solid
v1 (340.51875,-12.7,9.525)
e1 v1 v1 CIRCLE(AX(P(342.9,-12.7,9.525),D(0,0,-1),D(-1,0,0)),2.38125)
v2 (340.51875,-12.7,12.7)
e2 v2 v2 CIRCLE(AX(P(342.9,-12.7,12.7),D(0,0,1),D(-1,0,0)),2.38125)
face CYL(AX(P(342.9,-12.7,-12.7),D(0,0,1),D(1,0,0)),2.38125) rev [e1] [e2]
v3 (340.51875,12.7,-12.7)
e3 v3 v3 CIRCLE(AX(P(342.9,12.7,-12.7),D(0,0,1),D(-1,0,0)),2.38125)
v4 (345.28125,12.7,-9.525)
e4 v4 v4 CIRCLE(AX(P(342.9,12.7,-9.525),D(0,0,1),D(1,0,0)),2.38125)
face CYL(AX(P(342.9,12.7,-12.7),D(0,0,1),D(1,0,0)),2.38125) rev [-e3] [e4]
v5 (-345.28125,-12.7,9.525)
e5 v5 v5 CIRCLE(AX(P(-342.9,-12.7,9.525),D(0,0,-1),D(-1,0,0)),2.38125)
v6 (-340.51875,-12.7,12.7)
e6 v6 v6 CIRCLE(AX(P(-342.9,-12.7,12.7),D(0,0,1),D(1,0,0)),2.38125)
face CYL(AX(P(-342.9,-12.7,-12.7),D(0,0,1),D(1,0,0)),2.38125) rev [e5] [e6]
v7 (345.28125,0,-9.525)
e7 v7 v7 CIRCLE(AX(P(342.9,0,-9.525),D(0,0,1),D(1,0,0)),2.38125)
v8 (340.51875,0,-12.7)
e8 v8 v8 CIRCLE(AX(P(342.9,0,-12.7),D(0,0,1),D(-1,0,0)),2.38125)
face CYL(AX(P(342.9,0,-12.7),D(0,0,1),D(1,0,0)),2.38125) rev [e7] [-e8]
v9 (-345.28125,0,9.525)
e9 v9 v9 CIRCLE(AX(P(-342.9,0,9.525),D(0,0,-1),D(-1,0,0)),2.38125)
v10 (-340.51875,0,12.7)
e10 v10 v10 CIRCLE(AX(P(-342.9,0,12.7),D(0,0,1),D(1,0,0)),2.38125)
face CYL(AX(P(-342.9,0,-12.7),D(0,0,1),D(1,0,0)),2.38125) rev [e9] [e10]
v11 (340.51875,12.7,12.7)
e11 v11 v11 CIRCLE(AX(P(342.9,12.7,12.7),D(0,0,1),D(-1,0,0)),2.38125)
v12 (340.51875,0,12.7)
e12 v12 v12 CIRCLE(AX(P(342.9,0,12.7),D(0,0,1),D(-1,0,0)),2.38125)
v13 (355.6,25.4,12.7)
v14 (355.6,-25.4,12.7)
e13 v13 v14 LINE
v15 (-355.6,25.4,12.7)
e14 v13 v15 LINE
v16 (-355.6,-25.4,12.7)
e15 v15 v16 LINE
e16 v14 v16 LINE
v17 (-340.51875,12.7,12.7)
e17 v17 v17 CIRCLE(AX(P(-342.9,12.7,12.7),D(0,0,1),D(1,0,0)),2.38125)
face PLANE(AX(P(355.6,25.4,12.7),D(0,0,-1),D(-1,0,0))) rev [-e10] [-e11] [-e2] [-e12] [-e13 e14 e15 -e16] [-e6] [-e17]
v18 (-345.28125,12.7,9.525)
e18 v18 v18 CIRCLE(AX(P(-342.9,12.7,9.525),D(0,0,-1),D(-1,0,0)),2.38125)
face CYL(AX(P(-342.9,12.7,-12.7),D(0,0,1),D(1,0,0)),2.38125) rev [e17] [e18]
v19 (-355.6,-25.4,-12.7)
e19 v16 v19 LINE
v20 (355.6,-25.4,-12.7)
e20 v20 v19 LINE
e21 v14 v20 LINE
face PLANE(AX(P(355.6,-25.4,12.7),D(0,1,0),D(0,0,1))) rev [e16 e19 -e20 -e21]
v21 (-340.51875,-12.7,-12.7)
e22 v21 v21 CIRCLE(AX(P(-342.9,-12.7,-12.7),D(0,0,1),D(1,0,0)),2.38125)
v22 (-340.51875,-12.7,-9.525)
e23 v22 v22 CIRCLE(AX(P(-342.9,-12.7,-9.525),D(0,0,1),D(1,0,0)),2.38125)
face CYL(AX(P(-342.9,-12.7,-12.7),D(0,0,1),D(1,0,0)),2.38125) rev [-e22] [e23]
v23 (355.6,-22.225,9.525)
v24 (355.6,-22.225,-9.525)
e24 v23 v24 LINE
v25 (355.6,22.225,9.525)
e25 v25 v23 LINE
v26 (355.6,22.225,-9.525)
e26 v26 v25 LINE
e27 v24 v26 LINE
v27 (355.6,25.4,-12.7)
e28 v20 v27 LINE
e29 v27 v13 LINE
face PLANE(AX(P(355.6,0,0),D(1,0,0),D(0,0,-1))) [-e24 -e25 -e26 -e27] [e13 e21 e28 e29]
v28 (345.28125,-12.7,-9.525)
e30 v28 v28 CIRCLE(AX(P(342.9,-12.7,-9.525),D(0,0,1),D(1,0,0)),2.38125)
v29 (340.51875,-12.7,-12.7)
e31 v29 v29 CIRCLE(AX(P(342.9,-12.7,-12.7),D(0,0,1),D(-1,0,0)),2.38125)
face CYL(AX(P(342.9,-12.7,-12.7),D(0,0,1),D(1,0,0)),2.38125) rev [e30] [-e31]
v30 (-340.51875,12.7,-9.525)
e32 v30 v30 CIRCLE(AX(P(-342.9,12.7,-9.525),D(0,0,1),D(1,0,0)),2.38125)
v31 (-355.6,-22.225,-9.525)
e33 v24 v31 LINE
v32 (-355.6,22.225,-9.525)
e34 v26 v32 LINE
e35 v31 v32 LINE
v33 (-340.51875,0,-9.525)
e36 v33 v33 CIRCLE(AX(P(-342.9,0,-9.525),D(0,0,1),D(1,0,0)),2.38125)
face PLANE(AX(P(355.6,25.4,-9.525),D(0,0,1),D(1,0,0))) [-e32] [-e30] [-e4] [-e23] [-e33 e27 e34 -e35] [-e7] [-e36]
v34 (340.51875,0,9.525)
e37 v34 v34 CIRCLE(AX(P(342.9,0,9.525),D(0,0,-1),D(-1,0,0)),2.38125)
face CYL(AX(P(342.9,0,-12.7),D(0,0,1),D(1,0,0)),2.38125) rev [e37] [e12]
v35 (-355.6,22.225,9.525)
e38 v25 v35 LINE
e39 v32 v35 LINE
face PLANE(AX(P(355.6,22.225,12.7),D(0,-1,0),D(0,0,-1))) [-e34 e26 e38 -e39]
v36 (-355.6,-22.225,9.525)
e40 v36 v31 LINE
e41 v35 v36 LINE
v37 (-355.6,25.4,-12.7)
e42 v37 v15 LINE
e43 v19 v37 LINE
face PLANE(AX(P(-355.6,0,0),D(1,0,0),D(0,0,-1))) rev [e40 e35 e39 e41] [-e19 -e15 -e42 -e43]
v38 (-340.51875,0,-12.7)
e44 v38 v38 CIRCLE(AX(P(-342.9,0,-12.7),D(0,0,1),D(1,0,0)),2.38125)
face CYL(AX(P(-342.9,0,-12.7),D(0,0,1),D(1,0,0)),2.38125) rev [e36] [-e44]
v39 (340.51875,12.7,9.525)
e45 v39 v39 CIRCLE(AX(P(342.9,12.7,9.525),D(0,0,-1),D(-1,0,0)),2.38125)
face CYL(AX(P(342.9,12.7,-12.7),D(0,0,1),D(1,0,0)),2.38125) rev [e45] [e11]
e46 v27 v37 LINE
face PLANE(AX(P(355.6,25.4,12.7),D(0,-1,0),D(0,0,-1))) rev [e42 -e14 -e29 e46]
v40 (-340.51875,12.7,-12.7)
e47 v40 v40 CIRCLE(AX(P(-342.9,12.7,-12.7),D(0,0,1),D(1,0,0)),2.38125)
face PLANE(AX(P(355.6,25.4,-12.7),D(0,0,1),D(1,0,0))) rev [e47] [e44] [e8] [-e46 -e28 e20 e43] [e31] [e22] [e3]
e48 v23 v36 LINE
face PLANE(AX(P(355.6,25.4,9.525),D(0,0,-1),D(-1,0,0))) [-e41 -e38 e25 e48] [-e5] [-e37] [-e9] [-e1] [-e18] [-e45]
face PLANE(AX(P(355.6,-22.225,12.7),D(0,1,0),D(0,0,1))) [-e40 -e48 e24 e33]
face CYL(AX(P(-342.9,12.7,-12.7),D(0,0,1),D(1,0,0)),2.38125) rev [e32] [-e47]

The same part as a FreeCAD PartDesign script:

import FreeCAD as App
import Part
import Sketcher

V = App.Vector
Q = App.Units.Quantity


def faces_at(feature, points):
    """Names of the faces that lie closest to the given points."""
    faces = feature.Shape.Faces
    near = lambda p: min(range(len(faces)), key=lambda i: faces[i].distToShape(Part.Vertex(*p))[0])
    return sorted({f"Face{near(p) + 1}" for p in points})


def add_polygon(sketch, points):
    """Adds a closed chain of lines whose ends are joined by coincident constraints."""
    first, n = sketch.GeometryCount, len(points)
    for a, b in zip(points, points[1:] + points[:1]):
        sketch.addGeometry(Part.LineSegment(App.Vector(*a, 0), App.Vector(*b, 0)), False)
    for i in range(n):
        sketch.addConstraint(Sketcher.Constraint("Coincident", first + i, 2, first + (i + 1) % n, 1))

doc = App.newDocument("Part")
body = doc.addObject("PartDesign::Body", "Body")

# Sketch on YZ plane
sketch1 = body.newObject("Sketcher::SketchObject", "Sketch")
sketch1.AttachmentSupport = (doc.getObject("YZ_Plane"), [""])
sketch1.MapMode = "FlatFace"
add_polygon(sketch1, [(25, 13), (-25, 13), (-25, -13), (25, -13)])  # lines 0-3
sketch1.addConstraint(Sketcher.Constraint("Horizontal", 0))
sketch1.addConstraint(Sketcher.Constraint("Vertical", 1))
sketch1.addConstraint(Sketcher.Constraint("Horizontal", 2))
sketch1.addConstraint(Sketcher.Constraint("Vertical", 3))
sketch1.addConstraint(Sketcher.Constraint("Symmetric", 0, 2, 2, 2, -1, 1))
sketch1.addConstraint(Sketcher.Constraint("DistanceX", 0, 2, 0, 1, Q("2 in")))
sketch1.addConstraint(Sketcher.Constraint("DistanceY", 1, 2, 1, 1, Q("1 in")))
pad1 = body.newObject("PartDesign::Pad", "Pad")
pad1.Profile = sketch1
pad1.Length = Q("28 in")
pad1.Midplane = True
doc.recompute()

thickness = body.newObject("PartDesign::Thickness", "Thickness")
thickness.Base = (pad1, faces_at(pad1, [(355.6, 0, 0), (-355.6, 0, 0)]))
thickness.Value = Q("0.125 in")
thickness.Reversed = True
thickness.Join = "Intersection"

# Sketch on XY plane
sketch2 = body.newObject("Sketcher::SketchObject", "Sketch001")
sketch2.AttachmentSupport = (doc.getObject("XY_Plane"), [""])
sketch2.MapMode = "FlatFace"
sketch2.AttachmentOffset = App.Placement(V(0, 0, 0.5 * 25.4), App.Rotation())
sketch2.addGeometry(Part.Circle(V(-342.9, 12.7, 0), V(0, 0, 1), 2.4), False)
sketch2.addGeometry(Part.Circle(V(-342.9, 0, 0), V(0, 0, 1), 2.4), False)
sketch2.addGeometry(Part.Circle(V(-342.9, -12.7, 0), V(0, 0, 1), 2.4), False)
sketch2.addGeometry(Part.Circle(V(342.9, -12.7, 0), V(0, 0, 1), 2.4), False)
sketch2.addGeometry(Part.Circle(V(342.9, 0, 0), V(0, 0, 1), 2.4), False)
sketch2.addGeometry(Part.Circle(V(342.9, 12.7, 0), V(0, 0, 1), 2.4), False)
sketch2.addConstraint(Sketcher.Constraint("Equal", 0, 1))
sketch2.addConstraint(Sketcher.Constraint("Equal", 1, 2))
sketch2.addConstraint(Sketcher.Constraint("Equal", 2, 3))
sketch2.addConstraint(Sketcher.Constraint("Equal", 3, 4))
sketch2.addConstraint(Sketcher.Constraint("Equal", 4, 5))
sketch2.addConstraint(Sketcher.Constraint("Symmetric", 0, 3, 3, 3, -1, 1))
sketch2.addConstraint(Sketcher.Constraint("Symmetric", 1, 3, 4, 3, -1, 1))
sketch2.addConstraint(Sketcher.Constraint("Symmetric", 2, 3, 5, 3, -1, 1))
sketch2.addConstraint(Sketcher.Constraint("Symmetric", 2, 3, 3, 3, -2))
sketch2.addConstraint(Sketcher.Constraint("PointOnObject", 1, 3, -1))
sketch2.addConstraint(Sketcher.Constraint("Vertical", 0, 3, 1, 3))
sketch2.addConstraint(Sketcher.Constraint("Diameter", 0, Q("0.1875 in")))
sketch2.addConstraint(Sketcher.Constraint("DistanceY", 2, 3, 0, 3, Q("1 in")))
sketch2.addConstraint(Sketcher.Constraint("DistanceX", 2, 3, 3, 3, Q("27 in")))
pocket1 = body.newObject("PartDesign::Pocket", "Pocket")
pocket1.Profile = sketch2
pocket1.Type = "ThroughAll"

doc.recompute()
